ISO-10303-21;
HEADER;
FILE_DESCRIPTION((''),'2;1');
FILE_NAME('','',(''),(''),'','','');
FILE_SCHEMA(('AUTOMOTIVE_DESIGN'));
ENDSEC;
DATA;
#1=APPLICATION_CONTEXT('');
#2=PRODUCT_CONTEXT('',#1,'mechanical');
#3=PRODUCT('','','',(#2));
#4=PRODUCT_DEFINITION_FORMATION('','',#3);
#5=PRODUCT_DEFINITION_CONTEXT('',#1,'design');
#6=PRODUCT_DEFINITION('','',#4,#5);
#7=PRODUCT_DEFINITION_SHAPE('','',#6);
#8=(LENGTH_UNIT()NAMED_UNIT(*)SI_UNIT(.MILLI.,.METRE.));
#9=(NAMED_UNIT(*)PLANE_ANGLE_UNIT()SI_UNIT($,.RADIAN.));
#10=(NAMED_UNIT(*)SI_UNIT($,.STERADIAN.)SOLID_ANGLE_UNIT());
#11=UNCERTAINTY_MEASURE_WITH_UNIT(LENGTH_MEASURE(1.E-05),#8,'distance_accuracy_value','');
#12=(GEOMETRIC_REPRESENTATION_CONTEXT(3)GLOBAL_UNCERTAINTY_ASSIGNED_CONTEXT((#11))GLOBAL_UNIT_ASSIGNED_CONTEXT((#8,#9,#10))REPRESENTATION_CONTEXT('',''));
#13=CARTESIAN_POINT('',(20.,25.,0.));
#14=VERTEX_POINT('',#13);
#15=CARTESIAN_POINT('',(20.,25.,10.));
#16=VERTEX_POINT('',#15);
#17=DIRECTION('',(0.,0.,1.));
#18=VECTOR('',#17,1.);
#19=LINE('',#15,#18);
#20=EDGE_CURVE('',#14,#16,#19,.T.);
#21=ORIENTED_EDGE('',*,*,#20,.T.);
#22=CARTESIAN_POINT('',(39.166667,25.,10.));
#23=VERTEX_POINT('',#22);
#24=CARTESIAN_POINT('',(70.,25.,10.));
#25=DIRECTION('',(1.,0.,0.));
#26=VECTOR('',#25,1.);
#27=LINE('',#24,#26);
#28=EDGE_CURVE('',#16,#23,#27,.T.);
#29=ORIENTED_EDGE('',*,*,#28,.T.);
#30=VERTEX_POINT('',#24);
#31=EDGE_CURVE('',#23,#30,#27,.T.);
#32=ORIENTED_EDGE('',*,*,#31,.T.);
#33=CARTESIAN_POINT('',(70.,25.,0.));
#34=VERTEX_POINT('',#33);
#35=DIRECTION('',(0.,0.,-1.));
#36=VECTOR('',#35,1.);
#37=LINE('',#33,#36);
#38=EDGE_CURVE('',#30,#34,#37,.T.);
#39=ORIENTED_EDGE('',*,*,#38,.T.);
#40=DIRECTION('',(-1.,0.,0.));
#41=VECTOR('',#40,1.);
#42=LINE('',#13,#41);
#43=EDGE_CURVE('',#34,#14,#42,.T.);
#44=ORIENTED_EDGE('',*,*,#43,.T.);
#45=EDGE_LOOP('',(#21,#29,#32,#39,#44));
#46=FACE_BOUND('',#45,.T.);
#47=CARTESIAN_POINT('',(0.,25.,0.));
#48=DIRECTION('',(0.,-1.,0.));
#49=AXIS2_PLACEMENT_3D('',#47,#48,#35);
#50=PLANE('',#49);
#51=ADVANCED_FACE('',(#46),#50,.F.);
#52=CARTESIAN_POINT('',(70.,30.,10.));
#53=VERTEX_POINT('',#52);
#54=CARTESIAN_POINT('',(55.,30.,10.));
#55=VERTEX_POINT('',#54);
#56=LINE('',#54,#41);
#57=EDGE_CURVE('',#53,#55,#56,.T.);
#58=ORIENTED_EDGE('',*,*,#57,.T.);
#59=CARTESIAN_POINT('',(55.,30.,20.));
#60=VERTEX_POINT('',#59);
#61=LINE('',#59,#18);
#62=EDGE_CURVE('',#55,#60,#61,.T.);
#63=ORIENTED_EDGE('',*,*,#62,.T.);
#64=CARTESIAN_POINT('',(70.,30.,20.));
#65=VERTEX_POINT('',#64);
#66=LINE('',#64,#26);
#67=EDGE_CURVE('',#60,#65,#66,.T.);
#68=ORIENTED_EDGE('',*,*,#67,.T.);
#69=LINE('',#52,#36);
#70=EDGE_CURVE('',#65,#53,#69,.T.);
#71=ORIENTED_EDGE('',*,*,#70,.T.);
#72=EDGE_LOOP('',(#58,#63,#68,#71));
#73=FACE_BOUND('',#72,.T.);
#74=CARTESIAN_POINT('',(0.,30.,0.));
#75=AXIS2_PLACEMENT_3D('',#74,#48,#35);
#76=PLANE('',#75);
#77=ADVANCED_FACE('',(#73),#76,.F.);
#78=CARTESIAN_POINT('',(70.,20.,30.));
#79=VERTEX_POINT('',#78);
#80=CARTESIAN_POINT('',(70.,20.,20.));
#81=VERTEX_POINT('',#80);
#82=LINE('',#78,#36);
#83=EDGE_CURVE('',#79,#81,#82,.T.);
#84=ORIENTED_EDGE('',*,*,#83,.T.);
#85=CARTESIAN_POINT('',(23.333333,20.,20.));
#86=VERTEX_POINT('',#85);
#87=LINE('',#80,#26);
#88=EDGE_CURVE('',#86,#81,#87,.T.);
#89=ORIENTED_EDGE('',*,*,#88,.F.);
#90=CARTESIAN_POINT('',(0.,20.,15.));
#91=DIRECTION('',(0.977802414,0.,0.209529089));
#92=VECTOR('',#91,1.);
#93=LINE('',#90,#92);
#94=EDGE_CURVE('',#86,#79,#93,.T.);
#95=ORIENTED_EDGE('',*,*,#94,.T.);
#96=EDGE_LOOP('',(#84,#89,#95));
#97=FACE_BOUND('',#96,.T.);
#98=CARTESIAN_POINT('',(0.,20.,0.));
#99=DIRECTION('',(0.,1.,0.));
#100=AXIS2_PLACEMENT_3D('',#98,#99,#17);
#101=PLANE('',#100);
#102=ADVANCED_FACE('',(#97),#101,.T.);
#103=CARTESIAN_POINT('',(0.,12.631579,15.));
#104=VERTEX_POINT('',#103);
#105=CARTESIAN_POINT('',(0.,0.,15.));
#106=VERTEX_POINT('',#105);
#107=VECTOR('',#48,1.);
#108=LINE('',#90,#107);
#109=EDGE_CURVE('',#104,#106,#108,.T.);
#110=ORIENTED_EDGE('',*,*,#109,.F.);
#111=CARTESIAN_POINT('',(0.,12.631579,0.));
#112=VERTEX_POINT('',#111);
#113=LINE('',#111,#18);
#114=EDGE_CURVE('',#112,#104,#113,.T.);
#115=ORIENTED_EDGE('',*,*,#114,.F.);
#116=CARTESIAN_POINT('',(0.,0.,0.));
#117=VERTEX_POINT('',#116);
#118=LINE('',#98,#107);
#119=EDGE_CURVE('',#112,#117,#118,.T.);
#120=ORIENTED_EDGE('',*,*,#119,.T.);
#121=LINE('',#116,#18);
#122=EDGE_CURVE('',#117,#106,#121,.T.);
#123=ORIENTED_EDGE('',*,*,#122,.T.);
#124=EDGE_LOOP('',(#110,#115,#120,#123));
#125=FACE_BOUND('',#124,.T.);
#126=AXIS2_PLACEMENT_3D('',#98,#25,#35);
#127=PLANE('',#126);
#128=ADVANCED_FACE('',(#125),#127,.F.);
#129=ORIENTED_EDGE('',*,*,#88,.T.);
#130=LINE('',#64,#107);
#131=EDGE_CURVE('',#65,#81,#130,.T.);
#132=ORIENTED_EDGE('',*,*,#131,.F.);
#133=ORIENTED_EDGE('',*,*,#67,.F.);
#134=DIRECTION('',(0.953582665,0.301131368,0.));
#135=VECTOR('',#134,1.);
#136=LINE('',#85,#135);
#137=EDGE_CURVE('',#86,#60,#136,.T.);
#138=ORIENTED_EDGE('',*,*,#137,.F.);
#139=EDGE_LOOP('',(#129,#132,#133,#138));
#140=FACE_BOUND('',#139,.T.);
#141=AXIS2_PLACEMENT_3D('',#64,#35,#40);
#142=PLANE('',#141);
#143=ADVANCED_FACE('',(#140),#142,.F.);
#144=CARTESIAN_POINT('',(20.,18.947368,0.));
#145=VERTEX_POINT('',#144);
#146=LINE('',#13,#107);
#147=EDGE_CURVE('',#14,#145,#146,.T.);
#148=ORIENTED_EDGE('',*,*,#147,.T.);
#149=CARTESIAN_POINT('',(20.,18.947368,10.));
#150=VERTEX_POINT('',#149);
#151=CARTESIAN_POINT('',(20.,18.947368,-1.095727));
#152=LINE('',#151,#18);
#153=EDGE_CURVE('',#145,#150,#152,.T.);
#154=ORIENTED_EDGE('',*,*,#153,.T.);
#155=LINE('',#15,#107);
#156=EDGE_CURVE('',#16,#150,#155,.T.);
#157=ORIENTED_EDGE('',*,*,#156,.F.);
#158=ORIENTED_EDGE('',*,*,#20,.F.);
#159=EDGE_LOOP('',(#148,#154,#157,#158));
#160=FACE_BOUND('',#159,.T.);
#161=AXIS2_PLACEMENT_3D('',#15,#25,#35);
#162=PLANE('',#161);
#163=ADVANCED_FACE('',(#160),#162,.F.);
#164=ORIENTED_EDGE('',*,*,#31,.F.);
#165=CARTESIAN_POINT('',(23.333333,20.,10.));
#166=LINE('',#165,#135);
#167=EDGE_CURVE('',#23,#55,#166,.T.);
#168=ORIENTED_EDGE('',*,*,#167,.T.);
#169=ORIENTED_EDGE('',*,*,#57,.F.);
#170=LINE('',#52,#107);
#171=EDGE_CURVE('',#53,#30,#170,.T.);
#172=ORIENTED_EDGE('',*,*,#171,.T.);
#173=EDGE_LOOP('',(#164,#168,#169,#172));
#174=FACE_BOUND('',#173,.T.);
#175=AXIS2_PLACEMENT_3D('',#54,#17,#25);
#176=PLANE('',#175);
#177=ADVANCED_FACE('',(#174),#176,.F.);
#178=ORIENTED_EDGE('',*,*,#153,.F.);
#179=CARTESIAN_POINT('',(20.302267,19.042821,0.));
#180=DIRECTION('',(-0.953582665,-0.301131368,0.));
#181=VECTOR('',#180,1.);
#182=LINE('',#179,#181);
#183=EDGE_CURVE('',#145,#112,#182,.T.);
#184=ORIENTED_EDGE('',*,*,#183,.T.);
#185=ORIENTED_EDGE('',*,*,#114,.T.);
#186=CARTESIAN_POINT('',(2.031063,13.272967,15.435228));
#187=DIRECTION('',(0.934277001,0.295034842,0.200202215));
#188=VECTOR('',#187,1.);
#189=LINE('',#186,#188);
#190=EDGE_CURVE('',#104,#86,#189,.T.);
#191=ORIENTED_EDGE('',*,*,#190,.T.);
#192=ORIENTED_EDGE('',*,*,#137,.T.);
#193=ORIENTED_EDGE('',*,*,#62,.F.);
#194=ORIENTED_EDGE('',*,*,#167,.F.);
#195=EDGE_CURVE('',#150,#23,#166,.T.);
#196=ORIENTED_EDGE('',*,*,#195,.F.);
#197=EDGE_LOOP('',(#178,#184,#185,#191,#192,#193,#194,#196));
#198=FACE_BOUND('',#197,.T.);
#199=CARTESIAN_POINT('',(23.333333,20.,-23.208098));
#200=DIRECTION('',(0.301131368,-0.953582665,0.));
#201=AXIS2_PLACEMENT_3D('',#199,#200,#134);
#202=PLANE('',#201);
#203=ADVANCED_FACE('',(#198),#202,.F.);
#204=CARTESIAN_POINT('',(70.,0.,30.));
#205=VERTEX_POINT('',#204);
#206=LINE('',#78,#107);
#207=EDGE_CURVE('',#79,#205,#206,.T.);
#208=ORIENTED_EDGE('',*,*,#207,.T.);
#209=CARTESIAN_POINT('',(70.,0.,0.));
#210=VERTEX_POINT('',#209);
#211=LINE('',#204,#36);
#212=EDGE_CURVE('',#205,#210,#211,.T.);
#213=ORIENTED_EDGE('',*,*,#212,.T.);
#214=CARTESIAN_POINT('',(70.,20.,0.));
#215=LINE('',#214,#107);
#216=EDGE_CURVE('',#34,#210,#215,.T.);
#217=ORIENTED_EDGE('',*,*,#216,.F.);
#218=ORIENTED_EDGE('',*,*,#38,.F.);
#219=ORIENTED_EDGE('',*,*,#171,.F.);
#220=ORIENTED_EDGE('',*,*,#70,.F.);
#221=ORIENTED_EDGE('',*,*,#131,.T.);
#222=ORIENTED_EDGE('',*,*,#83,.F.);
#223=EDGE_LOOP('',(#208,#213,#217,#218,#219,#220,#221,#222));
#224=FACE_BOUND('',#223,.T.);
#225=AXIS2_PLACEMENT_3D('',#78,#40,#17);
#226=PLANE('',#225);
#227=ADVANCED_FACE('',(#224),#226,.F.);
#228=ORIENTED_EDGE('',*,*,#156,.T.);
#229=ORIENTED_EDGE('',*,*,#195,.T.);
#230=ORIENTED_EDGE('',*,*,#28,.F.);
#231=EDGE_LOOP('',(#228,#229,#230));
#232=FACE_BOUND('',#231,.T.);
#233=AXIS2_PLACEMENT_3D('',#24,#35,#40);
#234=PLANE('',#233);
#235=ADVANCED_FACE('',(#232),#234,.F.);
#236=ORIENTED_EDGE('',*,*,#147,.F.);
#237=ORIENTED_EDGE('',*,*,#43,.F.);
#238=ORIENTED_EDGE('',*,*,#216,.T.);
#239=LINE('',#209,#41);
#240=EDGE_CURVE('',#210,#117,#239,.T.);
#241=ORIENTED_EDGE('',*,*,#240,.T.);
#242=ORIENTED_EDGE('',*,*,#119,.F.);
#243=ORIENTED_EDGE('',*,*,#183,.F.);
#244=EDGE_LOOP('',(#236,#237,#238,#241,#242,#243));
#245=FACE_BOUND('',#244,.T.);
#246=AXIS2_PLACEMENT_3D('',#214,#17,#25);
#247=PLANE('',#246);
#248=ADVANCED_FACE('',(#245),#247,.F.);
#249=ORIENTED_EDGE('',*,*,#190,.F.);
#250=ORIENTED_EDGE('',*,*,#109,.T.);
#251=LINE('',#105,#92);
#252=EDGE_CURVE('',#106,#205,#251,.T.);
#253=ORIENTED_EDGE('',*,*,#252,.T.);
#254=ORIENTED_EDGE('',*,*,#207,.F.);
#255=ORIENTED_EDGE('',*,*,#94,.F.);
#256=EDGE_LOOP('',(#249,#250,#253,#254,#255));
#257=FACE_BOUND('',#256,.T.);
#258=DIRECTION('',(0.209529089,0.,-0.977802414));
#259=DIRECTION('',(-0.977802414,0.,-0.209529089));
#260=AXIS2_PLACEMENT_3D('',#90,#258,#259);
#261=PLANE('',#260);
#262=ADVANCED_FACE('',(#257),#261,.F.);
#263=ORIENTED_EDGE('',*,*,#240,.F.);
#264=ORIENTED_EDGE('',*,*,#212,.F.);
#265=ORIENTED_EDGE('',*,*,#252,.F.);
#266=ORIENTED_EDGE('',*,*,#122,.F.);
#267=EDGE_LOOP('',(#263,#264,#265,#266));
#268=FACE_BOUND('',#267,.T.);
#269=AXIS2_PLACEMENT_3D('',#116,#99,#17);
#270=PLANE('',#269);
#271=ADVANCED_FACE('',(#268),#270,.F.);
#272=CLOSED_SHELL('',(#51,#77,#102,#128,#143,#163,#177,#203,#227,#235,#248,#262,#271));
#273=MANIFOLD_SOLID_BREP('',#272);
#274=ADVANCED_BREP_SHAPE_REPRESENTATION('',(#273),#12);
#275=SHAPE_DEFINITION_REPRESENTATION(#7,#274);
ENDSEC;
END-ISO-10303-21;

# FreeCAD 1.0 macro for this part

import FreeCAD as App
import Part
import Sketcher

V = App.Vector
Q = App.Units.Quantity

doc = App.newDocument("Part")
body = doc.addObject("PartDesign::Body", "Body")

# Sketch on XZ plane
sketch1 = doc.addObject("Sketcher::SketchObject", "Sketch")
body.addObject(sketch1)
sketch1.AttachmentSupport = (doc.XZ_Plane, [""])
sketch1.MapMode = "FlatFace"
sketch1.addGeometry([
    Part.LineSegment(V(0, 0, 0), V(0, 15, 0)),
    Part.LineSegment(V(0, 15, 0), V(70, 30, 0)),
    Part.LineSegment(V(70, 30, 0), V(70, 0, 0)),
    Part.LineSegment(V(70, 0, 0), V(0, 0, 0)),
], False)
sketch1.addConstraint([
    Sketcher.Constraint("Coincident", 0, 2, 1, 1),
    Sketcher.Constraint("Coincident", 1, 2, 2, 1),
    Sketcher.Constraint("Coincident", 2, 2, 3, 1),
    Sketcher.Constraint("Coincident", 3, 2, 0, 1),
    Sketcher.Constraint("Vertical", 0),
    Sketcher.Constraint("Vertical", 2),
    Sketcher.Constraint("Horizontal", 3),
    Sketcher.Constraint("Coincident", 3, 2, -1, 1),
    Sketcher.Constraint("DistanceX", 3, 2, 3, 1, Q("70 mm")),
    Sketcher.Constraint("DistanceY", 0, 1, 0, 2, Q("15 mm")),
    Sketcher.Constraint("DistanceY", 2, 2, 2, 1, Q("30 mm")),
])
pad1 = doc.addObject("PartDesign::Pad", "Pad")
body.addObject(pad1)
pad1.Profile = sketch1
pad1.Length = 20
pad1.Reversed = True

# Sketch on XZ plane
sketch2 = doc.addObject("Sketcher::SketchObject", "Sketch001")
body.addObject(sketch2)
sketch2.AttachmentSupport = (doc.XZ_Plane, [""])
sketch2.MapMode = "FlatFace"
sketch2.AttachmentOffset = App.Placement(V(0, 0, -20), App.Rotation())
sketch2.addGeometry([
    Part.LineSegment(V(55, 10, 0), V(55, 20, 0)),
    Part.LineSegment(V(55, 20, 0), V(70, 20, 0)),
    Part.LineSegment(V(70, 20, 0), V(70, 10, 0)),
    Part.LineSegment(V(70, 10, 0), V(55, 10, 0)),
], False)
sketch2.addConstraint([
    Sketcher.Constraint("Coincident", 0, 2, 1, 1),
    Sketcher.Constraint("Coincident", 1, 2, 2, 1),
    Sketcher.Constraint("Coincident", 2, 2, 3, 1),
    Sketcher.Constraint("Coincident", 3, 2, 0, 1),
    Sketcher.Constraint("Vertical", 0),
    Sketcher.Constraint("Horizontal", 1),
    Sketcher.Constraint("Vertical", 2),
    Sketcher.Constraint("Horizontal", 3),
    Sketcher.Constraint("DistanceX", 1, 1, 1, 2, Q("15 mm")),
    Sketcher.Constraint("DistanceY", 0, 1, 0, 2, Q("10 mm")),
    Sketcher.Constraint("DistanceX", -1, 1, 0, 2, Q("55 mm")),
    Sketcher.Constraint("DistanceY", -1, 1, 0, 2, Q("20 mm")),
])
pad2 = doc.addObject("PartDesign::Pad", "Pad001")
body.addObject(pad2)
pad2.Profile = sketch2
pad2.Length = 10
pad2.Reversed = True

# Sketch on XZ plane
sketch3 = doc.addObject("Sketcher::SketchObject", "Sketch002")
body.addObject(sketch3)
sketch3.AttachmentSupport = (doc.XZ_Plane, [""])
sketch3.MapMode = "FlatFace"
sketch3.AttachmentOffset = App.Placement(V(0, 0, -20), App.Rotation())
sketch3.addGeometry([
    Part.LineSegment(V(20, 0, 0), V(20, 10, 0)),
    Part.LineSegment(V(20, 10, 0), V(70, 10, 0)),
    Part.LineSegment(V(70, 10, 0), V(70, 0, 0)),
    Part.LineSegment(V(70, 0, 0), V(20, 0, 0)),
], False)
sketch3.addConstraint([
    Sketcher.Constraint("Coincident", 0, 2, 1, 1),
    Sketcher.Constraint("Coincident", 1, 2, 2, 1),
    Sketcher.Constraint("Coincident", 2, 2, 3, 1),
    Sketcher.Constraint("Coincident", 3, 2, 0, 1),
    Sketcher.Constraint("Vertical", 0),
    Sketcher.Constraint("Horizontal", 1),
    Sketcher.Constraint("Vertical", 2),
    Sketcher.Constraint("Horizontal", 3),
    Sketcher.Constraint("PointOnObject", 2, 2, -1),
    Sketcher.Constraint("DistanceX", 1, 1, 1, 2, Q("50 mm")),
    Sketcher.Constraint("DistanceY", 0, 1, 0, 2, Q("10 mm")),
    Sketcher.Constraint("DistanceX", -1, 1, 0, 2, Q("20 mm")),
])
pad3 = doc.addObject("PartDesign::Pad", "Pad002")
body.addObject(pad3)
pad3.Profile = sketch3
pad3.Length = 5
pad3.Reversed = True

# Sketch on XY plane
sketch4 = doc.addObject("Sketcher::SketchObject", "Sketch003")
body.addObject(sketch4)
sketch4.AttachmentSupport = (doc.XY_Plane, [""])
sketch4.MapMode = "FlatFace"
sketch4.AttachmentOffset = App.Placement(V(0, 0, 20), App.Rotation())
sketch4.addGeometry([
    Part.LineSegment(V(23.333333, 20, 0), V(55, 30, 0)),
    Part.LineSegment(V(55, 30, 0), V(55, 20, 0)),
    Part.LineSegment(V(55, 20, 0), V(23.333333, 20, 0)),
], False)
sketch4.addConstraint([
    Sketcher.Constraint("Coincident", 0, 2, 1, 1),
    Sketcher.Constraint("Coincident", 1, 2, 2, 1),
    Sketcher.Constraint("Coincident", 2, 2, 0, 1),
    Sketcher.Constraint("Vertical", 1),
    Sketcher.Constraint("Horizontal", 2),
    Sketcher.Constraint("DistanceY", 1, 2, 1, 1, Q("10 mm")),
    Sketcher.Constraint("DistanceX", -1, 1, 0, 2, Q("55 mm")),
    Sketcher.Constraint("DistanceY", -1, 1, 0, 2, Q("30 mm")),
    Sketcher.Constraint("Distance", 0, Q("33.208098 mm")),
])
pad4 = doc.addObject("PartDesign::Pad", "Pad003")
body.addObject(pad4)
pad4.Profile = sketch4
pad4.Length = 10
pad4.Reversed = True

# Sketch on an angled plane
sketch5 = doc.addObject("Sketcher::SketchObject", "Sketch004")
body.addObject(sketch5)
sketch5.Placement = App.Placement(V(-3.627204, 11.486146, 0), App.Rotation(V(0.953582665, 0.301131368, 0), V(0, 0, -1), V(-0.301131368, 0.953582665, 0), "ZXY"))
sketch5.addGeometry([
    Part.LineSegment(V(2.464686, 0, 0), V(2.464686, -20, 0)),  # 0
    Part.LineSegment(V(2.464686, -20, 0), V(63.372001, -20, 0)),  # 1
    Part.LineSegment(V(63.372001, -20, 0), V(63.372001, -10, 0)),  # 2
    Part.LineSegment(V(63.372001, -10, 0), V(25.094281, -10, 0)),  # 3
    Part.LineSegment(V(25.094281, -10, 0), V(25.094281, 0, 0)),  # 4
    Part.LineSegment(V(25.094281, 0, 0), V(2.464686, 0, 0)),  # 5
], False)
sketch5.addConstraint([
    Sketcher.Constraint("Coincident", 0, 2, 1, 1),
    Sketcher.Constraint("Coincident", 1, 2, 2, 1),
    Sketcher.Constraint("Coincident", 2, 2, 3, 1),
    Sketcher.Constraint("Coincident", 3, 2, 4, 1),
    Sketcher.Constraint("Coincident", 4, 2, 5, 1),
    Sketcher.Constraint("Coincident", 5, 2, 0, 1),
    Sketcher.Constraint("Vertical", 0),
    Sketcher.Constraint("Horizontal", 1),
    Sketcher.Constraint("Vertical", 2),
    Sketcher.Constraint("Horizontal", 3),
    Sketcher.Constraint("Vertical", 4),
    Sketcher.Constraint("Horizontal", 5),
    Sketcher.Constraint("PointOnObject", 4, 2, -1),
    Sketcher.Constraint("Equal", 2, 4),
    Sketcher.Constraint("DistanceY", 0, 2, 0, 1, Q("20 mm")),
    Sketcher.Constraint("DistanceX", -1, 1, 1, 2, Q("63.372001 mm")),
    Sketcher.Constraint("DistanceX", 3, 2, 3, 1, Q("38.27772 mm")),
    Sketcher.Constraint("DistanceX", 1, 1, 1, 2, Q("60.907315 mm")),
])
pocket1 = doc.addObject("PartDesign::Pocket", "Pocket")
body.addObject(pocket1)
pocket1.Profile = sketch5
pocket1.Type = "ThroughAll"
pocket1.Reversed = True

# Sketch on XY plane
sketch6 = doc.addObject("Sketcher::SketchObject", "Sketch005")
body.addObject(sketch6)
sketch6.AttachmentSupport = (doc.XY_Plane, [""])
sketch6.MapMode = "FlatFace"
sketch6.AttachmentOffset = App.Placement(V(0, 0, 10), App.Rotation())
sketch6.addGeometry([
    Part.LineSegment(V(20, 20, 0), V(20, 18.947368, 0)),
    Part.LineSegment(V(20, 18.947368, 0), V(20.304277, 19.043456, 0)),
    Part.LineSegment(V(20.304277, 19.043456, 0), V(20, 20, 0)),
], False)
sketch6.addConstraint([
    Sketcher.Constraint("Coincident", 0, 2, 1, 1),
    Sketcher.Constraint("Coincident", 1, 2, 2, 1),
    Sketcher.Constraint("Coincident", 2, 2, 0, 1),
    Sketcher.Constraint("Vertical", 0),
    Sketcher.Constraint("DistanceX", -1, 1, 0, 2, Q("20 mm")),
    Sketcher.Constraint("DistanceY", -1, 1, 2, 2, Q("20 mm")),
    Sketcher.Constraint("DistanceY", 0, 2, 0, 1, Q("1.052632 mm")),
    Sketcher.Constraint("Distance", 1, Q("0.319088 mm")),
    Sketcher.Constraint("Distance", 2, Q("1.003773 mm")),
])
pad5 = doc.addObject("PartDesign::Pad", "Pad004")
body.addObject(pad5)
pad5.Profile = sketch6
pad5.Length = 10
pad5.Reversed = True

doc.recompute()
